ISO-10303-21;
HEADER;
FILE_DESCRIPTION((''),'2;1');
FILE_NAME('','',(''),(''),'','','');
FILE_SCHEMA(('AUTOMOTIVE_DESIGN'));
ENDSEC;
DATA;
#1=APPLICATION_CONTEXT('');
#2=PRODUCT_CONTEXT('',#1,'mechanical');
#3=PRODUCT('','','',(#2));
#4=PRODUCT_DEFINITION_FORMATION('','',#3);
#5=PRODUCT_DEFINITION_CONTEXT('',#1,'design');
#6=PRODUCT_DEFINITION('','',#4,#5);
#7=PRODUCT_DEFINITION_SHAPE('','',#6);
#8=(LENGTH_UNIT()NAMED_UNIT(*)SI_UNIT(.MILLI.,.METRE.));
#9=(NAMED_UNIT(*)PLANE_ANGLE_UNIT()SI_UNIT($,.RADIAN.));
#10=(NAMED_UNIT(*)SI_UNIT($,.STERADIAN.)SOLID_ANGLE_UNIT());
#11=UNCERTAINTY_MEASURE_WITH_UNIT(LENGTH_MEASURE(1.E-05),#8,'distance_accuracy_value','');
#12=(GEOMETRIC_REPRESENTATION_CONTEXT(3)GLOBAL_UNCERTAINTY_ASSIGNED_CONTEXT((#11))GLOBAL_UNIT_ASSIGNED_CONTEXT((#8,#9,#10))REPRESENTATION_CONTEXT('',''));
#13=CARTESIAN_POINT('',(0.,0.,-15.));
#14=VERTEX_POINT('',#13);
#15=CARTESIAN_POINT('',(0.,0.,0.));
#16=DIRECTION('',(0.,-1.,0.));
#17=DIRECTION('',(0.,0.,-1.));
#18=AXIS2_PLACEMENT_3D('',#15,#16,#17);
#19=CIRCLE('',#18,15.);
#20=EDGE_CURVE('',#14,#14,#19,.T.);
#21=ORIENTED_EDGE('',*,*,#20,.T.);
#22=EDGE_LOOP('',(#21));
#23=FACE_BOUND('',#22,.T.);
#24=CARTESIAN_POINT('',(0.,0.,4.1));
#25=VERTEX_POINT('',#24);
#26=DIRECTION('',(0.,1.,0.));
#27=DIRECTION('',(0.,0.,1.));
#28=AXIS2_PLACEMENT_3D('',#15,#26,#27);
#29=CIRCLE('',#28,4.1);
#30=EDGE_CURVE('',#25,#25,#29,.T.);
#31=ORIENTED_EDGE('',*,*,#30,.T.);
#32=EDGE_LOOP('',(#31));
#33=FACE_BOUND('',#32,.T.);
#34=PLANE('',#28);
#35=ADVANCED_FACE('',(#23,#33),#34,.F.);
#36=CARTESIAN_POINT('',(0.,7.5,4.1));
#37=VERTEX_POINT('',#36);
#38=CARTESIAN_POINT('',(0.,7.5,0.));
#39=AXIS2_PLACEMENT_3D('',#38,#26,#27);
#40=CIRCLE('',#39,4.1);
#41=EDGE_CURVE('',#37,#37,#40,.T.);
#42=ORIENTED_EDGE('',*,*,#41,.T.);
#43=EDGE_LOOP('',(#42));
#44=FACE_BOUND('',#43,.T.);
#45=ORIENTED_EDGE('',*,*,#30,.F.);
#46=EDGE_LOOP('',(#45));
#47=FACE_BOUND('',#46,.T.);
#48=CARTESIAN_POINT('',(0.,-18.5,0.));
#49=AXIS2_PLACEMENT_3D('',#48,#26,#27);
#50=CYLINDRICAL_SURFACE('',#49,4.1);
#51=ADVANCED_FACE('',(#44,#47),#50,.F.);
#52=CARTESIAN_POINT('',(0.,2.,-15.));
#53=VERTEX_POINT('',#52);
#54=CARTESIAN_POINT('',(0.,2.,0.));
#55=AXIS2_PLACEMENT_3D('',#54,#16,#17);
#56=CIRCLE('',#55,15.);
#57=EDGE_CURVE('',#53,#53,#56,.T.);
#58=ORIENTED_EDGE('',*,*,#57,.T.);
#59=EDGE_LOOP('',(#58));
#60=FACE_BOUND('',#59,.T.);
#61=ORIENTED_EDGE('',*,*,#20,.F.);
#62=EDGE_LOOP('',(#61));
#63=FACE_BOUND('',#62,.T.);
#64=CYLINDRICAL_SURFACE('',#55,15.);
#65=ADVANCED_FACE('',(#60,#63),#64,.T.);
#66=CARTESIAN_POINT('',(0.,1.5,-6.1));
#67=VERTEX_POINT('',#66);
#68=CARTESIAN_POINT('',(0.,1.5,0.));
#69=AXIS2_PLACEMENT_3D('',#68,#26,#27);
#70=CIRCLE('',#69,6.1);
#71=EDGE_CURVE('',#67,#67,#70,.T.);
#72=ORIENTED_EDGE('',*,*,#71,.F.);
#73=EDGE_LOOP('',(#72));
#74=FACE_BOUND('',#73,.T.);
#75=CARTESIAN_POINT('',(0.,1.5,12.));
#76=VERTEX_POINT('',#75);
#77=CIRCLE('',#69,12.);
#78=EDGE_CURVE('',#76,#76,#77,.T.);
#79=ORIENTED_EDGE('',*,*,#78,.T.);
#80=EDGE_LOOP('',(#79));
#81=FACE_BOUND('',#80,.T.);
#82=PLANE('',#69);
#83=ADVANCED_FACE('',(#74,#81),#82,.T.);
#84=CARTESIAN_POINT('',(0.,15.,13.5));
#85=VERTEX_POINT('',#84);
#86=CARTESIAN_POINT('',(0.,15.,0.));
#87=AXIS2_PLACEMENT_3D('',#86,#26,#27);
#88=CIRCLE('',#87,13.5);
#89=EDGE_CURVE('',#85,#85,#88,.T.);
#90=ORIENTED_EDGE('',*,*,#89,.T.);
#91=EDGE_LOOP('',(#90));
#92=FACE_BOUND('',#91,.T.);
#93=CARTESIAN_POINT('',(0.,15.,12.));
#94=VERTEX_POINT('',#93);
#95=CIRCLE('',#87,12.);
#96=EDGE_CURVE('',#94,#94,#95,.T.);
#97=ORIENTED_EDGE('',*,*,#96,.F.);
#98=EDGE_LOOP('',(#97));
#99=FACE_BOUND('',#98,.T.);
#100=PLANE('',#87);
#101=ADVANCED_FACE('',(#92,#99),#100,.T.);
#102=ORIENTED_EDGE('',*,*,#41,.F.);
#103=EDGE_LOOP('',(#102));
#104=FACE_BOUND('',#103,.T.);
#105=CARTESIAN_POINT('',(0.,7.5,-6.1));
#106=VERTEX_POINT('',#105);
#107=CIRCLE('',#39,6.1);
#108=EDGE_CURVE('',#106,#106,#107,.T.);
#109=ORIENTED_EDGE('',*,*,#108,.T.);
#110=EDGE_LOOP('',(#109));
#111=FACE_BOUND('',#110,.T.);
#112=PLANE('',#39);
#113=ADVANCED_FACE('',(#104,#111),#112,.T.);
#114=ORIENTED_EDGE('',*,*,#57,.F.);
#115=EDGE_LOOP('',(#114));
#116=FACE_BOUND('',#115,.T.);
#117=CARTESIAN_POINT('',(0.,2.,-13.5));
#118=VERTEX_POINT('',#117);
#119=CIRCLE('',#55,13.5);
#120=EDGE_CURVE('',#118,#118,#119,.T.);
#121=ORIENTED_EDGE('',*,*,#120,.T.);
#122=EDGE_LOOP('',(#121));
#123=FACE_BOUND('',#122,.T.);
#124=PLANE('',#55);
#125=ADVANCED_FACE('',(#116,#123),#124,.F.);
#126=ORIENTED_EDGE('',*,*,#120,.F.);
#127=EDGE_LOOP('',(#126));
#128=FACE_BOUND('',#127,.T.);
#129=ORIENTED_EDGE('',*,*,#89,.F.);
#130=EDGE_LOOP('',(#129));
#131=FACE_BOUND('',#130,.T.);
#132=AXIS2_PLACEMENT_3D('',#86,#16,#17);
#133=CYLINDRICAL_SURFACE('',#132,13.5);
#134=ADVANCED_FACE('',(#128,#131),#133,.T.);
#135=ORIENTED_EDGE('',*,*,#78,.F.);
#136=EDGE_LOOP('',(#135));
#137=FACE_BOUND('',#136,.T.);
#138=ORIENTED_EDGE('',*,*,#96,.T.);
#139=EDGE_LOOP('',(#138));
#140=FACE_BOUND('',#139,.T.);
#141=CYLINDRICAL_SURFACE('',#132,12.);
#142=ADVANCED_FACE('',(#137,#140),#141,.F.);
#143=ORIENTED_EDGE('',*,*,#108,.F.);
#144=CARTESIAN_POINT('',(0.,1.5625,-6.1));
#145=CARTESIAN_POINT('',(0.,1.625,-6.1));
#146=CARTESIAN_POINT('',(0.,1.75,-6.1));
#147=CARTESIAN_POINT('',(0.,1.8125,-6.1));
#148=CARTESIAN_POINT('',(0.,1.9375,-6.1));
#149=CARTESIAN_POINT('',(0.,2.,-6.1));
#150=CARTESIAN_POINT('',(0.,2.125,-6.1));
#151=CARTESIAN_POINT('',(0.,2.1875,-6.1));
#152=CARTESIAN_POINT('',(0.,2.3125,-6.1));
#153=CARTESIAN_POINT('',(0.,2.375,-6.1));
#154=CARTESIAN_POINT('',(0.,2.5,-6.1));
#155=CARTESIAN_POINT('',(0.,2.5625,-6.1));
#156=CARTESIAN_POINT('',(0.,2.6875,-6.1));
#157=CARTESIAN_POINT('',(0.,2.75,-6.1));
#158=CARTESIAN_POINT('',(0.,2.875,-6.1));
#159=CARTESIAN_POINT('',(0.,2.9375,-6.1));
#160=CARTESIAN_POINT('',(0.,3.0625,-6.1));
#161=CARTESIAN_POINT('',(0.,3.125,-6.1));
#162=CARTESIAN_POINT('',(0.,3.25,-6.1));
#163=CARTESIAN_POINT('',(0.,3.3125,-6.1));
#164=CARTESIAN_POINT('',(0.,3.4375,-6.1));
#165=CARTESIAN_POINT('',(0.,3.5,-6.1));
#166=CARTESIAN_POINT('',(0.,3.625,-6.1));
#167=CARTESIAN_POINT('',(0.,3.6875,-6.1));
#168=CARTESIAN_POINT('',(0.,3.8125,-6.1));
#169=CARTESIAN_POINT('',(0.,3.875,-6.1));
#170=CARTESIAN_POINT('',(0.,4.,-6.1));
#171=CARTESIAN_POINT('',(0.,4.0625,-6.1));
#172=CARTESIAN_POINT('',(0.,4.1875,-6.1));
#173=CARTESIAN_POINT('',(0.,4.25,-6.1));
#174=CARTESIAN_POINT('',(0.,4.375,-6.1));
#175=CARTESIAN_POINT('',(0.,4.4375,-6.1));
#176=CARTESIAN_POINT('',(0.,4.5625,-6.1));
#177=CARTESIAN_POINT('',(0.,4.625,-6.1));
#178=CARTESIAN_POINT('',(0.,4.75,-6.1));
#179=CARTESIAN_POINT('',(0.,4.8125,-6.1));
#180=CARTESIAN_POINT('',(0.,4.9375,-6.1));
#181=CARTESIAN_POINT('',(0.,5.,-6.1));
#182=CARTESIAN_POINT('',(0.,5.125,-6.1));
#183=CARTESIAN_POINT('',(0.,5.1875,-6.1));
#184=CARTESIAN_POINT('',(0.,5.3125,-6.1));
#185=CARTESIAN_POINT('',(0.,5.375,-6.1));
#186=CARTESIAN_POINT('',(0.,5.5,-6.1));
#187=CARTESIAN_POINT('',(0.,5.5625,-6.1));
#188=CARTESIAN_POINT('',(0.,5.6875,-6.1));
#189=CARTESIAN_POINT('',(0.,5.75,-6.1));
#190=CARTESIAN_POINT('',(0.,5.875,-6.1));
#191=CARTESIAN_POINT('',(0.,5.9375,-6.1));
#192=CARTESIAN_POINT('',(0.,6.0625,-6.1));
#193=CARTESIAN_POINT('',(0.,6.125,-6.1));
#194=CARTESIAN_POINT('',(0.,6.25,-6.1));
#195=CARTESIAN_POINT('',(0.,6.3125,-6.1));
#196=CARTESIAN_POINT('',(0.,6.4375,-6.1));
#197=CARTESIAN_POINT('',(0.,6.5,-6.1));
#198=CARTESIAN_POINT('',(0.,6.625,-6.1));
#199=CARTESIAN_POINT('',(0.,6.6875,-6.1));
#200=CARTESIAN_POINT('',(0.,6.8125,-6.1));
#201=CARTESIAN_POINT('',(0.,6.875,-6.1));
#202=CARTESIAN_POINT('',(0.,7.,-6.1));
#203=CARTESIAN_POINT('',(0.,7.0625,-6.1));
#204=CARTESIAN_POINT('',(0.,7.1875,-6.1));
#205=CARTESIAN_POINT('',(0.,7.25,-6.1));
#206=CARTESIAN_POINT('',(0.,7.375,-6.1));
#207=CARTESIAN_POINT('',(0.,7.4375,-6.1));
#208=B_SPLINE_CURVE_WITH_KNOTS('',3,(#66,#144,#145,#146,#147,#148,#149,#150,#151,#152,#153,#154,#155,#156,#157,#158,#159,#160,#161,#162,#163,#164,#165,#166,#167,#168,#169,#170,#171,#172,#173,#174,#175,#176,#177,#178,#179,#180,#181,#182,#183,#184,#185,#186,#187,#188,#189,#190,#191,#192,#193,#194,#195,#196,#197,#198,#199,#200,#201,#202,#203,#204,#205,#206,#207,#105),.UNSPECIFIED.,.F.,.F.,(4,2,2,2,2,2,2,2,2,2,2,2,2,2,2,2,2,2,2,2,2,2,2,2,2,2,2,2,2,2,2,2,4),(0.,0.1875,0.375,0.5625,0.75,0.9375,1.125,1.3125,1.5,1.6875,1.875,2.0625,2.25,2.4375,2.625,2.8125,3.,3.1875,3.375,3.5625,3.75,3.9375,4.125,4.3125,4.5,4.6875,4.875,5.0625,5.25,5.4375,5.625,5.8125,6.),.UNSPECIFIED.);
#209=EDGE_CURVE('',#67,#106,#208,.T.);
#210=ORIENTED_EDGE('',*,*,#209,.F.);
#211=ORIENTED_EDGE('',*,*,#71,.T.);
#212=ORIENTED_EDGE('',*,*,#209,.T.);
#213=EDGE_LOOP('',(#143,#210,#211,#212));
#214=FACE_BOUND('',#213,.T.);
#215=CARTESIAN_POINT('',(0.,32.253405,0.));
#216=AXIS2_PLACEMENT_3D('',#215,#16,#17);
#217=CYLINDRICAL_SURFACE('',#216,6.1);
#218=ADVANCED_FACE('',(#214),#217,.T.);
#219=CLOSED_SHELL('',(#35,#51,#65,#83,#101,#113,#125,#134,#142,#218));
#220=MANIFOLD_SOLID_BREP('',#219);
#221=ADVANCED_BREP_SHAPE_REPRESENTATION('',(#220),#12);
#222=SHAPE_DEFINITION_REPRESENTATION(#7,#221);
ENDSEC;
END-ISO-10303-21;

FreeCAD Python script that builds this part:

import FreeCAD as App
import Part
import Sketcher


def faces_at(feature, points):
    """Names of the faces that lie closest to the given points."""
    faces = feature.Shape.Faces
    near = lambda p: min(range(len(faces)), key=lambda i: faces[i].distToShape(Part.Vertex(*p))[0])
    return sorted({f"Face{near(p) + 1}" for p in points})

doc = App.newDocument("Part")
body = doc.addObject("PartDesign::Body", "Body")

sketch1 = body.newObject("Sketcher::SketchObject", "Sketch")
sketch1.AttachmentSupport = (doc.getObject("XZ_Plane"), [""])
sketch1.MapMode = "FlatFace"
sketch1.addGeometry(Part.Circle(App.Vector(0, 0, 0), App.Vector(0, 0, 1), 14), False)
sketch1.addConstraint([
    Sketcher.Constraint("Coincident", 0, 3, -1, 1),
    Sketcher.Constraint("Diameter", 0, 27.0),
])
pad1 = body.newObject("PartDesign::Pad", "Pad")
pad1.Profile = sketch1
pad1.Length = 15
pad1.Reversed = True
doc.recompute()

thickness = body.newObject("PartDesign::Thickness", "Thickness")
thickness.Base = (pad1, faces_at(pad1, [(0, 15, 0)]))
thickness.Value = 1.5
thickness.Reversed = True
thickness.Join = "Intersection"

sketch2 = body.newObject("Sketcher::SketchObject", "Sketch001")
sketch2.AttachmentSupport = (doc.getObject("XZ_Plane"), [""])
sketch2.MapMode = "FlatFace"
sketch2.AttachmentOffset = App.Placement(App.Vector(0, 0, -1.5), App.Rotation())
sketch2.addGeometry(Part.Circle(App.Vector(0, 0, 0), App.Vector(0, 0, 1), 4.1), False)
sketch2.addConstraint([
    Sketcher.Constraint("Coincident", 0, 3, -1, 1),
    Sketcher.Constraint("Diameter", 0, 8.2),
])
pocket1 = body.newObject("PartDesign::Pocket", "Pocket")
pocket1.Profile = sketch2
pocket1.Length = 20
pocket1.Reversed = True

sketch3 = body.newObject("Sketcher::SketchObject", "Sketch002")
sketch3.AttachmentSupport = (doc.getObject("XZ_Plane"), [""])
sketch3.MapMode = "FlatFace"
sketch3.AttachmentOffset = App.Placement(App.Vector(0, 0, -7.5), App.Rotation())
sketch3.addGeometry([
    Part.Circle(App.Vector(0, 0, 0), App.Vector(0, 0, 1), 6.1),
    Part.Circle(App.Vector(0, 0, 0), App.Vector(0, 0, 1), 4.1),
], False)
sketch3.addConstraint([
    Sketcher.Constraint("Coincident", 0, 3, -1, 1),
    Sketcher.Constraint("Coincident", 1, 3, -1, 1),
    Sketcher.Constraint("Diameter", 0, 12.2),
    Sketcher.Constraint("Diameter", 1, 8.2),
])
pad2 = body.newObject("PartDesign::Pad", "Pad001")
pad2.Profile = sketch3
pad2.Length = 6
body2 = doc.addObject("PartDesign::Body", "Body001")

sketch4 = body2.newObject("Sketcher::SketchObject", "Sketch003")
sketch4.AttachmentSupport = (doc.getObject("XZ_Plane001"), [""])
sketch4.MapMode = "FlatFace"
sketch4.addGeometry([
    Part.Circle(App.Vector(0, 0, 0), App.Vector(0, 0, 1), 15),
    Part.Circle(App.Vector(0, 0, 0), App.Vector(0, 0, 1), 12),
], False)
sketch4.addConstraint([
    Sketcher.Constraint("Coincident", 0, 3, -1, 1),
    Sketcher.Constraint("Coincident", 1, 3, -1, 1),
    Sketcher.Constraint("Diameter", 0, 30.0),
    Sketcher.Constraint("Diameter", 1, 25.0),
])
pad3 = body2.newObject("PartDesign::Pad", "Pad002")
pad3.Profile = sketch4
pad3.Length = 2
pad3.Reversed = True
doc.recompute()

boolean = body.newObject("PartDesign::Boolean", "Boolean")
boolean.Type = "Fuse"
boolean.addObjects([body2])

doc.recompute()
